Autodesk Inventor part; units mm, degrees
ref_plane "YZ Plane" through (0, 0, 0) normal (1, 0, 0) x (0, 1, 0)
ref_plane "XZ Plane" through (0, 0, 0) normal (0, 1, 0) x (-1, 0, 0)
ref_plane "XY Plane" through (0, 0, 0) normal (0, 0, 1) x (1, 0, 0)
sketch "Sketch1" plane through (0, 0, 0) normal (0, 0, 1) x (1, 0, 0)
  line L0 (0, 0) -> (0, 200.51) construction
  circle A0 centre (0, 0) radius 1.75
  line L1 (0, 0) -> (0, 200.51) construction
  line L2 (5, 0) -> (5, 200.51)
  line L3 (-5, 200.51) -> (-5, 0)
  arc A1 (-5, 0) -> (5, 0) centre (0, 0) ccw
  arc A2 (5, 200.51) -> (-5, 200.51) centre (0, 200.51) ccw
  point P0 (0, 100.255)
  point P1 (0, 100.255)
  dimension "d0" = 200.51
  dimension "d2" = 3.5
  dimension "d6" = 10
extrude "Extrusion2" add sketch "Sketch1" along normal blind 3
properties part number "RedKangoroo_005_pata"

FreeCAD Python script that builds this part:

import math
import FreeCAD as App
import Part
import Sketcher

V = App.Vector
Q = App.Units.Quantity

doc = App.newDocument("Part")
body = doc.addObject("PartDesign::Body", "Body")

# Sketch on XY plane
sketch1 = body.newObject("Sketcher::SketchObject", "Sketch")
sketch1.AttachmentSupport = (doc.getObject("XY_Plane"), [""])
sketch1.MapMode = "FlatFace"
sketch1.addGeometry(Part.ArcOfCircle(Part.Circle(V(0, 0, 0), V(0, 0, 1), 5), math.radians(180), math.radians(360)), False)
sketch1.addGeometry(Part.LineSegment(V(5, 0, 0), V(5, 200.5, 0)), False)
sketch1.addGeometry(Part.ArcOfCircle(Part.Circle(V(0, 200.5, 0), V(0, 0, 1), 5), math.radians(0), math.radians(180)), False)
sketch1.addGeometry(Part.LineSegment(V(-5, 200.5, 0), V(-5, 0, 0)), False)
sketch1.addGeometry(Part.Circle(V(0, 0, 0), V(0, 0, 1), 1.8), False)
sketch1.addConstraint(Sketcher.Constraint("Tangent", 0, 2, 1, 1))
sketch1.addConstraint(Sketcher.Constraint("Tangent", 1, 2, 2, 1))
sketch1.addConstraint(Sketcher.Constraint("Tangent", 2, 2, 3, 1))
sketch1.addConstraint(Sketcher.Constraint("Tangent", 3, 2, 0, 1))
sketch1.addConstraint(Sketcher.Constraint("Vertical", 1))
sketch1.addConstraint(Sketcher.Constraint("Vertical", 3))
sketch1.addConstraint(Sketcher.Constraint("Coincident", 0, 3, -1, 1))
sketch1.addConstraint(Sketcher.Constraint("Coincident", 4, 3, -1, 1))
sketch1.addConstraint(Sketcher.Constraint("Radius", 0, Q("5 mm")))
sketch1.addConstraint(Sketcher.Constraint("Diameter", 4, Q("3.5 mm")))
sketch1.addConstraint(Sketcher.Constraint("DistanceY", 1, 1, 1, 2, Q("200.51 mm")))
pad1 = body.newObject("PartDesign::Pad", "Pad")
pad1.Profile = sketch1
pad1.Length = 3

doc.recompute()
